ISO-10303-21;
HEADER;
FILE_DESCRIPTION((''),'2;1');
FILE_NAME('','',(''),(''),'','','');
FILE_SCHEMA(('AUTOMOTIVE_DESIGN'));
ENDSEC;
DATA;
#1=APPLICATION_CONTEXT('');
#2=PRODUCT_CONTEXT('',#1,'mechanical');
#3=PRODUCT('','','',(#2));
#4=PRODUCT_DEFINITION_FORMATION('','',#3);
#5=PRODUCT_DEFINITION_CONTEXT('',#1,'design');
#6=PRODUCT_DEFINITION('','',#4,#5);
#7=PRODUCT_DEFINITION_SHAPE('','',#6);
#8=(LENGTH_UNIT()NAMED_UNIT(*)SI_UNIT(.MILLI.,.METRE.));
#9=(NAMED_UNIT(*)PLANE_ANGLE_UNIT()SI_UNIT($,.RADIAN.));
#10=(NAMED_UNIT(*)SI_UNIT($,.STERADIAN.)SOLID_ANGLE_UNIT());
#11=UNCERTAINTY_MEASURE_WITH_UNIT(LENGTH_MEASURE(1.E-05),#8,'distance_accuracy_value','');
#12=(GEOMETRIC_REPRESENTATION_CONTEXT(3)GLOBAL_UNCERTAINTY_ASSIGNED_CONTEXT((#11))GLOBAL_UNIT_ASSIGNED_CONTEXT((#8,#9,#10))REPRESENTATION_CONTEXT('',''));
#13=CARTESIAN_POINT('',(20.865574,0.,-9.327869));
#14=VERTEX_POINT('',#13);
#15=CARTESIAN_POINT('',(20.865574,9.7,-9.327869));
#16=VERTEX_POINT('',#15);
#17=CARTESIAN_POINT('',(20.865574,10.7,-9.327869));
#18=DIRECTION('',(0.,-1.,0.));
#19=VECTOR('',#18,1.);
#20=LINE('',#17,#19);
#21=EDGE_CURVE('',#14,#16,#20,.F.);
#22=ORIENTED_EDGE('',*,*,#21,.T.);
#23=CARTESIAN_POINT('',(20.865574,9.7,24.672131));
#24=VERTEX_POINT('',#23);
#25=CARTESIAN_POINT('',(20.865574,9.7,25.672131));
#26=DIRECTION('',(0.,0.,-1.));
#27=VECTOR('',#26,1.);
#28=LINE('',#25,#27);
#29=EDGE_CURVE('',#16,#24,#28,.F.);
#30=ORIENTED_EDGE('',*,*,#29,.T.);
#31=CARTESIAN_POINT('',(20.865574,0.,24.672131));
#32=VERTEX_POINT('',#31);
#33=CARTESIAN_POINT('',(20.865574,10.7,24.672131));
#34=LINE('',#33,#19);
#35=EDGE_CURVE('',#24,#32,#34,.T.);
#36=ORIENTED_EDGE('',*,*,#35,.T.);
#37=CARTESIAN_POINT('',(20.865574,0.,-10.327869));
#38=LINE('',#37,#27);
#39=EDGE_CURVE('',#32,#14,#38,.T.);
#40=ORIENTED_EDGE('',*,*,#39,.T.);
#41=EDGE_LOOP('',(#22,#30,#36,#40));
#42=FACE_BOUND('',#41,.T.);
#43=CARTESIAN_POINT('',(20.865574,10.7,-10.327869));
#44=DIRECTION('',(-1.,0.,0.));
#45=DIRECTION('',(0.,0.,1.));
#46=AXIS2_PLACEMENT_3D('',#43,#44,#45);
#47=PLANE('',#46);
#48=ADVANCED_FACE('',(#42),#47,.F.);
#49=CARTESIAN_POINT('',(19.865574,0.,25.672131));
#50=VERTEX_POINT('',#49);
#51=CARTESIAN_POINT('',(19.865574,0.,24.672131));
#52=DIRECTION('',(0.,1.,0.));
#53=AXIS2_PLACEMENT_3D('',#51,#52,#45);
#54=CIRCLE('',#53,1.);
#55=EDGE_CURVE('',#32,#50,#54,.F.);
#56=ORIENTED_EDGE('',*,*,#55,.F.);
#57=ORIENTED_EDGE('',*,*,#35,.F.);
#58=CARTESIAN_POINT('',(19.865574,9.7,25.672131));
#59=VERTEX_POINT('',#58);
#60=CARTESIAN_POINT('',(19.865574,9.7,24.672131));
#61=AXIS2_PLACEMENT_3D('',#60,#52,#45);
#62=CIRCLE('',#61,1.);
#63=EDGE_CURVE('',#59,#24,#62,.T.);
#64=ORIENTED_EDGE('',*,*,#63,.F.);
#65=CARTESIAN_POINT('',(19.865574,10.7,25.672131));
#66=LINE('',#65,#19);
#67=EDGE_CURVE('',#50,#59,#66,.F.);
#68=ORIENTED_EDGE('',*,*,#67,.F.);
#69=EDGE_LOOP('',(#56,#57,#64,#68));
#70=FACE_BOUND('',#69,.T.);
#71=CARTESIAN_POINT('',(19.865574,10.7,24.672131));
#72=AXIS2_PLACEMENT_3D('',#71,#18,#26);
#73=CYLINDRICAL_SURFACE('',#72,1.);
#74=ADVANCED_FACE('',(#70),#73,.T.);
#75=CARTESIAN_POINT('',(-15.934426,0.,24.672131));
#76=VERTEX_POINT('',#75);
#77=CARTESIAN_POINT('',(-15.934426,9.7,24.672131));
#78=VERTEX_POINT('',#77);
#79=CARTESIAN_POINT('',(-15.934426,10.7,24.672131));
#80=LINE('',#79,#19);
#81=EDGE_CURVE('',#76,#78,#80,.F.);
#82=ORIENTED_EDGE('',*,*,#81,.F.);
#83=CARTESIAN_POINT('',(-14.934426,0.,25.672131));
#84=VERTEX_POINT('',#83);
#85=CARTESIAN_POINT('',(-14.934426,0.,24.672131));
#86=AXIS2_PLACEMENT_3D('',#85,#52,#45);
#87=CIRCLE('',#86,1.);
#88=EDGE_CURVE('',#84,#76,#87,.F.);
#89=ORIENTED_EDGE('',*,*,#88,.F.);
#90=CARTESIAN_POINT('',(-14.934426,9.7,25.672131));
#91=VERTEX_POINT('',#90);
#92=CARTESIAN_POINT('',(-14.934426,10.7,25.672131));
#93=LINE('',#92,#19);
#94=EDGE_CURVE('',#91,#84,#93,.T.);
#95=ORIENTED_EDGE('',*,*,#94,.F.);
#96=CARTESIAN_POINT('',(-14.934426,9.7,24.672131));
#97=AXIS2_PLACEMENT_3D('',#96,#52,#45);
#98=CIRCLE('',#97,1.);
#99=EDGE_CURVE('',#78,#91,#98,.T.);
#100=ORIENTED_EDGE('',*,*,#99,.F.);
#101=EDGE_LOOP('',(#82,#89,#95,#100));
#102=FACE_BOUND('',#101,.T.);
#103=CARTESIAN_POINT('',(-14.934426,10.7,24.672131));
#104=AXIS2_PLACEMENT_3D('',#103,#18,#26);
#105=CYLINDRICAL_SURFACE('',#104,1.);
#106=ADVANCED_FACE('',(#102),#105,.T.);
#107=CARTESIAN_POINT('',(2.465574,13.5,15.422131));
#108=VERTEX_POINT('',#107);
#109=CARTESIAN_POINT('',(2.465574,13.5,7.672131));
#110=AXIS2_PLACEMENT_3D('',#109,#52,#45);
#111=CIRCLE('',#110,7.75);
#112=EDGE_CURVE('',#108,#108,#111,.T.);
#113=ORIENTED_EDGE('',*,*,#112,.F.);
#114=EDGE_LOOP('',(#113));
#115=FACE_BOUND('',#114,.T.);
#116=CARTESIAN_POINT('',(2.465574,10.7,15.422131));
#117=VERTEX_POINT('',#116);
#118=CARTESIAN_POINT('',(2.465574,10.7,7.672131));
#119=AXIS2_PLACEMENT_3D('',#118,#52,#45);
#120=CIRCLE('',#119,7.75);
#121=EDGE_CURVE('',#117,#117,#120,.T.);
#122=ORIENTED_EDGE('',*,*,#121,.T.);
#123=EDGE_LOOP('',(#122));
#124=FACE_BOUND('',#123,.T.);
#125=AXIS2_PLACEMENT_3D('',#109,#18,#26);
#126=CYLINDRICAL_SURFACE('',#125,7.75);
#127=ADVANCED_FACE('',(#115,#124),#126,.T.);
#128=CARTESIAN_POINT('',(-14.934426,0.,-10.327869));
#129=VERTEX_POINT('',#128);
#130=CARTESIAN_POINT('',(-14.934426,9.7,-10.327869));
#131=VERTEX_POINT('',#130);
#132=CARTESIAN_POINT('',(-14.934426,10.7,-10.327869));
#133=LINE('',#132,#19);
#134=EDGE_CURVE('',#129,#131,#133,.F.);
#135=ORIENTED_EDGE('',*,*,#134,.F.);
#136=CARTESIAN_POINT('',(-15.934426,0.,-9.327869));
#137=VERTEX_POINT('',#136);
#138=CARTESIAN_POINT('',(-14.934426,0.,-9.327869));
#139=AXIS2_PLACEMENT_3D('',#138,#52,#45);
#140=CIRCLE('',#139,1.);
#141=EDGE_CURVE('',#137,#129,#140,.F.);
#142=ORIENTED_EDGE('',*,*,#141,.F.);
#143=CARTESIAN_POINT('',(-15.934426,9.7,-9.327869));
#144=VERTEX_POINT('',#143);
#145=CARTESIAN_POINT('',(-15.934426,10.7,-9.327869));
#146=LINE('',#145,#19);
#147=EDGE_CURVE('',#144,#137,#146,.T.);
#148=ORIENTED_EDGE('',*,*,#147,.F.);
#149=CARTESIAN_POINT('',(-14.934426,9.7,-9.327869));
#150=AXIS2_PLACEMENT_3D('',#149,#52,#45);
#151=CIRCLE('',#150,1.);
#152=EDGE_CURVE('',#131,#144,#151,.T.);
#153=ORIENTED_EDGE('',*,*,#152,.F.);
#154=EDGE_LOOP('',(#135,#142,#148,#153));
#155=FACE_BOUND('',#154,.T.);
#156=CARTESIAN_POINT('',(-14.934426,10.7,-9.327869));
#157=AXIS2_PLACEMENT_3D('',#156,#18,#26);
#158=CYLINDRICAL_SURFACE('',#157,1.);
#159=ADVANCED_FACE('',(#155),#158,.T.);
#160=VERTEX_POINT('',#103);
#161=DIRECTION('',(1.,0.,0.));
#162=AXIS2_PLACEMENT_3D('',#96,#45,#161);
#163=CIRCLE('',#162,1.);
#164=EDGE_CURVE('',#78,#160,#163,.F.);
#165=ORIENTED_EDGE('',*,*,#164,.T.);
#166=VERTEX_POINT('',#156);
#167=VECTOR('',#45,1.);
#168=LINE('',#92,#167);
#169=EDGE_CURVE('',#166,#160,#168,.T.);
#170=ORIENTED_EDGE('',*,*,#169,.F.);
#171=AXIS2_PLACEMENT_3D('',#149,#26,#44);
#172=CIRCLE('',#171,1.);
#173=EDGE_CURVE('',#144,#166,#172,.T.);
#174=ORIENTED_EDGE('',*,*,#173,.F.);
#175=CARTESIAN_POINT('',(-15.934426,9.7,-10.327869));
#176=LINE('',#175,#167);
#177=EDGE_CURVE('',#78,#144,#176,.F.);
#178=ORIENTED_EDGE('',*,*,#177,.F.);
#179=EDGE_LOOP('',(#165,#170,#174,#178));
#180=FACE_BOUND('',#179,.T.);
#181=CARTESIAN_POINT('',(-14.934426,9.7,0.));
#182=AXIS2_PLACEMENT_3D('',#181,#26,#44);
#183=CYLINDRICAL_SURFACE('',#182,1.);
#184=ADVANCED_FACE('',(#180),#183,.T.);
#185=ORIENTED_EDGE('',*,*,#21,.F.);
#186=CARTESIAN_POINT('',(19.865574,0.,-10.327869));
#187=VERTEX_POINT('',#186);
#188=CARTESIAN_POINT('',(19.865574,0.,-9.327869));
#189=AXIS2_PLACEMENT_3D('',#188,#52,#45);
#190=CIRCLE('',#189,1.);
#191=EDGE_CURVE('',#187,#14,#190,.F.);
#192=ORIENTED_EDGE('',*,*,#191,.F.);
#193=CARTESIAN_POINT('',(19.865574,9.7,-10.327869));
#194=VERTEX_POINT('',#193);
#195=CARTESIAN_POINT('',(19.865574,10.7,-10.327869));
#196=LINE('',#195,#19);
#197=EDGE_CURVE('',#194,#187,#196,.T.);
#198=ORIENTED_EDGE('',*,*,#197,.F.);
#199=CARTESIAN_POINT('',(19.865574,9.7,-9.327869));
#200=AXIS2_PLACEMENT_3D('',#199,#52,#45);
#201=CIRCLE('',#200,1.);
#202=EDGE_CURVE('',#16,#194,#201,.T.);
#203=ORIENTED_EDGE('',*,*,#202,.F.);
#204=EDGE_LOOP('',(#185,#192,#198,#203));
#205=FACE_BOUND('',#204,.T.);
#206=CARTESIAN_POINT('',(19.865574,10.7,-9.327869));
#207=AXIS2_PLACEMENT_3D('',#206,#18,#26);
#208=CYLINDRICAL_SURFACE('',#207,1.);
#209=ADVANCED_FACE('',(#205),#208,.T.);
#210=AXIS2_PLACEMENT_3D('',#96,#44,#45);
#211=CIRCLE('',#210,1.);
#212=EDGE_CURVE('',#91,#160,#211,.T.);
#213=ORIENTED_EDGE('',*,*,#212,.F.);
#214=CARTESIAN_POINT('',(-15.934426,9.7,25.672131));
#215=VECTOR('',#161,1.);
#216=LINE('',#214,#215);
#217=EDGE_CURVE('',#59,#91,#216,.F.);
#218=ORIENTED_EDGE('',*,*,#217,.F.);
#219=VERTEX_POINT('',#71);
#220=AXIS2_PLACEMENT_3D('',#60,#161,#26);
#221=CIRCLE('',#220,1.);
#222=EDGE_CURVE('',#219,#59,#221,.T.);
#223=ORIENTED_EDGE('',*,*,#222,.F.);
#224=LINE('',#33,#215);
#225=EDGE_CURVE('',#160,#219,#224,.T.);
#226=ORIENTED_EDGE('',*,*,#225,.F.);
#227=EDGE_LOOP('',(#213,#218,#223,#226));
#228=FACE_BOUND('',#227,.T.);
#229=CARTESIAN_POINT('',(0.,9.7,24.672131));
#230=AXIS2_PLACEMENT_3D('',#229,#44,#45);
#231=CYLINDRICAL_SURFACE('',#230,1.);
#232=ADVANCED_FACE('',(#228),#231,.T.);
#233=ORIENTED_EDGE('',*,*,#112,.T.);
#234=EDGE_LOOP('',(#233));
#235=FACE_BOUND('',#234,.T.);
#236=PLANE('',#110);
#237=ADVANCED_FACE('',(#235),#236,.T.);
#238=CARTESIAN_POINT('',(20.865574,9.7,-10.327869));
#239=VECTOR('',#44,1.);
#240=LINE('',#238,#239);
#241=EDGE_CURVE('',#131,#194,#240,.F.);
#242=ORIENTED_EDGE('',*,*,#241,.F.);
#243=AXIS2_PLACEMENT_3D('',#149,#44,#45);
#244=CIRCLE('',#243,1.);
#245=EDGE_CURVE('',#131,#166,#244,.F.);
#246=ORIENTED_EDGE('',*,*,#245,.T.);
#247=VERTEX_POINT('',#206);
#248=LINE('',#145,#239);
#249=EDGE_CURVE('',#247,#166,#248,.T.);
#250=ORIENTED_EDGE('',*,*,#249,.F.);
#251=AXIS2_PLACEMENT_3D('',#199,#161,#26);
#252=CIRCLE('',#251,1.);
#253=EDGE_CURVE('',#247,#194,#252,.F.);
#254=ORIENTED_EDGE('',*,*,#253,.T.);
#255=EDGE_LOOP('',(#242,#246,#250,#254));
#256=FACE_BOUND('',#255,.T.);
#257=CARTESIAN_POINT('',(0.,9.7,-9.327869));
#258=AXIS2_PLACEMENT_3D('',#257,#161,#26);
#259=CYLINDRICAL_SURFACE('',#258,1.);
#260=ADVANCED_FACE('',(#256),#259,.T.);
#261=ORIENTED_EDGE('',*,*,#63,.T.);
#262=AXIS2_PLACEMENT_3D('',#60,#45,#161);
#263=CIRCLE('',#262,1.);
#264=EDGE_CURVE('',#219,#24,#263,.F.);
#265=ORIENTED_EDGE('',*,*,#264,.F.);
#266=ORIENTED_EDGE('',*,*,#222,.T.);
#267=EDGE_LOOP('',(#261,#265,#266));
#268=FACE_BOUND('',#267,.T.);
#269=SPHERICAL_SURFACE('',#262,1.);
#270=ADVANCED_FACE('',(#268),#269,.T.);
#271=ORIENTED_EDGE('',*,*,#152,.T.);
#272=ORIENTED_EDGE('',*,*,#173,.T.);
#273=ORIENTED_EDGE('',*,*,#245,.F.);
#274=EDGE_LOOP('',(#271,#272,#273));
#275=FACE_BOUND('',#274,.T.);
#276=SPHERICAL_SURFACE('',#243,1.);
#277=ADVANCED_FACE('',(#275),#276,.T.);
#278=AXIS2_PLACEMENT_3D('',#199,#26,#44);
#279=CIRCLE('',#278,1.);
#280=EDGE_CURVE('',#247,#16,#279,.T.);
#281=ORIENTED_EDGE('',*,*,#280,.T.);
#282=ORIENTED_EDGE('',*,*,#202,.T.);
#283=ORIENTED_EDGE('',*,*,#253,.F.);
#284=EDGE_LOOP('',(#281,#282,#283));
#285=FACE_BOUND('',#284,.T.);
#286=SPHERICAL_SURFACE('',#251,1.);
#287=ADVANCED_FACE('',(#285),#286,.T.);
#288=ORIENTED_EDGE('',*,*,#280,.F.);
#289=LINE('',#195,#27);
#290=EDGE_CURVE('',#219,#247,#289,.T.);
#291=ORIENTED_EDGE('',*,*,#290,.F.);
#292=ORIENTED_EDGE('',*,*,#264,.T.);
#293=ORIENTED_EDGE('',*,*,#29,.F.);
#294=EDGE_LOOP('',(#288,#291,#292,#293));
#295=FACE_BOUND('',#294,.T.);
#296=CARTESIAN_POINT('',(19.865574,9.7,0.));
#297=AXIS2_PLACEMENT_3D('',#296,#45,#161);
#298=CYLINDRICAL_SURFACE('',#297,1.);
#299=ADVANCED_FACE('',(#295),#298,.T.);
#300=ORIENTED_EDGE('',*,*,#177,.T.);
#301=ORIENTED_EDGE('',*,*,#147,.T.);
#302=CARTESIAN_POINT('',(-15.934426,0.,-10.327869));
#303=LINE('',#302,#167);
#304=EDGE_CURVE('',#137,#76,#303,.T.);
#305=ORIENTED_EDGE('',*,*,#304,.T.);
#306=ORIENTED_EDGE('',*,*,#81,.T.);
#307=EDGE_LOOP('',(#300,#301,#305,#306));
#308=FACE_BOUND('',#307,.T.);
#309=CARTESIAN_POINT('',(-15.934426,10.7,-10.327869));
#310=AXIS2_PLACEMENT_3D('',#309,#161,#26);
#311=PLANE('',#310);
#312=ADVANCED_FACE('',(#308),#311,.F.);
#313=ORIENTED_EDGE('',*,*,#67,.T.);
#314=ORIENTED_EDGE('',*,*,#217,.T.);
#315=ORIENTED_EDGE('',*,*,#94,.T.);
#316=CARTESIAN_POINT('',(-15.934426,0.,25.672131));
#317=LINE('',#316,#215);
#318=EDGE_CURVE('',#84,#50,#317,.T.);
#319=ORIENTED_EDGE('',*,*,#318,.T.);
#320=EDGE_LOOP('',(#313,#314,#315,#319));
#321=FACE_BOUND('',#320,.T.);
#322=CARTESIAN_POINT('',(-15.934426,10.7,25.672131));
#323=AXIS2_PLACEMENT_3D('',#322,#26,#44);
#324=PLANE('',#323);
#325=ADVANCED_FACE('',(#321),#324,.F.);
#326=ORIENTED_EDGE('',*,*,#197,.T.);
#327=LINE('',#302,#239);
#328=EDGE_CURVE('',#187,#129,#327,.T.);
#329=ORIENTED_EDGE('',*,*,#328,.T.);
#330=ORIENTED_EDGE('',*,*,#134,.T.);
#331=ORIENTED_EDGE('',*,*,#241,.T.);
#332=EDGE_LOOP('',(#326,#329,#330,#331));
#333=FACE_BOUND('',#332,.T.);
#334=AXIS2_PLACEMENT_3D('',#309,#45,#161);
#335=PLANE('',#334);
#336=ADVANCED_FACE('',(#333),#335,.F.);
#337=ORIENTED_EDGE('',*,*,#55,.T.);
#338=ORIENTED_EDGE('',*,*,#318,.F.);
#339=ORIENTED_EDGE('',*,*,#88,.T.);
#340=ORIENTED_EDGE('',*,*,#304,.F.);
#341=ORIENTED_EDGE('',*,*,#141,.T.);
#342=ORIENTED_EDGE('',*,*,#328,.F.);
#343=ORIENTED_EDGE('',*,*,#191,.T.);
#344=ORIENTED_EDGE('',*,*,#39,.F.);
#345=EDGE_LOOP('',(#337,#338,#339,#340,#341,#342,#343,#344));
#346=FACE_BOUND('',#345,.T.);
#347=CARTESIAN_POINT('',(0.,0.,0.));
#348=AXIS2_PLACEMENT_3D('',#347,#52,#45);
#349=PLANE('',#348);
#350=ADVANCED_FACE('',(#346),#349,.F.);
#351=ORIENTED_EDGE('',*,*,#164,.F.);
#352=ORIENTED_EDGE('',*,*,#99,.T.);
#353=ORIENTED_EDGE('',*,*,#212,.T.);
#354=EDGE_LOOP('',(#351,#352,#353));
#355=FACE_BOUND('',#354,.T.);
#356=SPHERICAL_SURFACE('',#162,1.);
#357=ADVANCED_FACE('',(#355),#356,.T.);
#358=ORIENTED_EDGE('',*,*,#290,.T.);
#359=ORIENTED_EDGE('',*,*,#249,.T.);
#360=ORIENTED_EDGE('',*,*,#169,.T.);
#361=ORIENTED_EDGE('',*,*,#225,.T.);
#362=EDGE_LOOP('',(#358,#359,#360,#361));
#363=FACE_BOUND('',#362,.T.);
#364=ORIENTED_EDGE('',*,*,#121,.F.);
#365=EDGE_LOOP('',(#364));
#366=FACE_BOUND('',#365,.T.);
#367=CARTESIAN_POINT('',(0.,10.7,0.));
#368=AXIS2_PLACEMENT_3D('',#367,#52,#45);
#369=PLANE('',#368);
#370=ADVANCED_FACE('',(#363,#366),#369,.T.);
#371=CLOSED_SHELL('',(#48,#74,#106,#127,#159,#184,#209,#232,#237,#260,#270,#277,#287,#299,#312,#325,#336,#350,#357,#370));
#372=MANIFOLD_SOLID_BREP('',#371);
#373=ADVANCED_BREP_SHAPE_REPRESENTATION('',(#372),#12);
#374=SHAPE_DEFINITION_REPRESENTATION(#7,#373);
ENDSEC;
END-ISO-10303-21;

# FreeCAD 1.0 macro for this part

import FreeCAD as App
import Part
import Sketcher

V = App.Vector
Q = App.Units.Quantity


def edges_at(feature, points):
    """Names of the edges that pass closest to the given points."""
    edges = feature.Shape.Edges
    near = lambda p: min(range(len(edges)), key=lambda i: edges[i].distToShape(Part.Vertex(*p))[0])
    return sorted({f"Edge{near(p) + 1}" for p in points})

doc = App.newDocument("Part")
body = doc.addObject("PartDesign::Body", "Body")

# Sketch on XZ plane
sketch1 = doc.addObject("Sketcher::SketchObject", "Sketch")
body.addObject(sketch1)
sketch1.AttachmentSupport = (doc.XZ_Plane, [""])
sketch1.MapMode = "FlatFace"
sketch1.addGeometry([
    Part.LineSegment(V(-16, -10, 0), V(-16, 26, 0)),
    Part.LineSegment(V(-16, 26, 0), V(21, 26, 0)),
    Part.LineSegment(V(21, 26, 0), V(21, -10, 0)),
    Part.LineSegment(V(21, -10, 0), V(-16, -10, 0)),
], False)
sketch1.addConstraint([
    Sketcher.Constraint("Coincident", 0, 2, 1, 1),
    Sketcher.Constraint("Coincident", 1, 2, 2, 1),
    Sketcher.Constraint("Coincident", 2, 2, 3, 1),
    Sketcher.Constraint("Coincident", 3, 2, 0, 1),
    Sketcher.Constraint("Vertical", 0),
    Sketcher.Constraint("Horizontal", 1),
    Sketcher.Constraint("Vertical", 2),
    Sketcher.Constraint("Horizontal", 3),
    Sketcher.Constraint("DistanceY", 0, 1, 0, 2, Q("36 mm")),
    Sketcher.Constraint("DistanceX", 1, 1, 1, 2, Q("36.8 mm")),
    Sketcher.Constraint("DistanceY", -1, 1, 0, 2, Q("25.672131 mm")),
    Sketcher.Constraint("DistanceX", 0, 2, -1, 1, Q("15.934426 mm")),
])
pad1 = doc.addObject("PartDesign::Pad", "Pad")
body.addObject(pad1)
pad1.Profile = sketch1
pad1.Length = 10.7
pad1.Reversed = True
doc.recompute()

fillet = doc.addObject("PartDesign::Fillet", "Fillet")
body.addObject(fillet)
fillet.Base = (pad1, edges_at(pad1, [
    (20.866, 10.7, 7.672),
    (2.466, 10.7, -10.328),
    (-15.934, 10.7, 7.672),
    (-15.934, 5.35, -10.328),
    (20.866, 5.35, -10.328),
    (20.866, 5.35, 25.672),
    (-15.934, 5.35, 25.672),
    (2.466, 10.7, 25.672),
]))
fillet.Radius = 1

# Sketch on XZ plane
sketch2 = doc.addObject("Sketcher::SketchObject", "Sketch001")
body.addObject(sketch2)
sketch2.AttachmentSupport = (doc.XZ_Plane, [""])
sketch2.MapMode = "FlatFace"
sketch2.AttachmentOffset = App.Placement(V(0, 0, -10.7), App.Rotation())
sketch2.addGeometry(Part.Circle(V(2, 8, 0), V(0, 0, 1), 8), False)
sketch2.addConstraint([
    Sketcher.Constraint("Diameter", 0, Q("15.5 mm")),
    Sketcher.Constraint("DistanceY", -1, 1, 0, 3, Q("7.672131 mm")),
    Sketcher.Constraint("DistanceX", -1, 1, 0, 3, Q("2.465574 mm")),
])
pad2 = doc.addObject("PartDesign::Pad", "Pad001")
body.addObject(pad2)
pad2.Profile = sketch2
pad2.Length = 2.8
pad2.Reversed = True

doc.recompute()
